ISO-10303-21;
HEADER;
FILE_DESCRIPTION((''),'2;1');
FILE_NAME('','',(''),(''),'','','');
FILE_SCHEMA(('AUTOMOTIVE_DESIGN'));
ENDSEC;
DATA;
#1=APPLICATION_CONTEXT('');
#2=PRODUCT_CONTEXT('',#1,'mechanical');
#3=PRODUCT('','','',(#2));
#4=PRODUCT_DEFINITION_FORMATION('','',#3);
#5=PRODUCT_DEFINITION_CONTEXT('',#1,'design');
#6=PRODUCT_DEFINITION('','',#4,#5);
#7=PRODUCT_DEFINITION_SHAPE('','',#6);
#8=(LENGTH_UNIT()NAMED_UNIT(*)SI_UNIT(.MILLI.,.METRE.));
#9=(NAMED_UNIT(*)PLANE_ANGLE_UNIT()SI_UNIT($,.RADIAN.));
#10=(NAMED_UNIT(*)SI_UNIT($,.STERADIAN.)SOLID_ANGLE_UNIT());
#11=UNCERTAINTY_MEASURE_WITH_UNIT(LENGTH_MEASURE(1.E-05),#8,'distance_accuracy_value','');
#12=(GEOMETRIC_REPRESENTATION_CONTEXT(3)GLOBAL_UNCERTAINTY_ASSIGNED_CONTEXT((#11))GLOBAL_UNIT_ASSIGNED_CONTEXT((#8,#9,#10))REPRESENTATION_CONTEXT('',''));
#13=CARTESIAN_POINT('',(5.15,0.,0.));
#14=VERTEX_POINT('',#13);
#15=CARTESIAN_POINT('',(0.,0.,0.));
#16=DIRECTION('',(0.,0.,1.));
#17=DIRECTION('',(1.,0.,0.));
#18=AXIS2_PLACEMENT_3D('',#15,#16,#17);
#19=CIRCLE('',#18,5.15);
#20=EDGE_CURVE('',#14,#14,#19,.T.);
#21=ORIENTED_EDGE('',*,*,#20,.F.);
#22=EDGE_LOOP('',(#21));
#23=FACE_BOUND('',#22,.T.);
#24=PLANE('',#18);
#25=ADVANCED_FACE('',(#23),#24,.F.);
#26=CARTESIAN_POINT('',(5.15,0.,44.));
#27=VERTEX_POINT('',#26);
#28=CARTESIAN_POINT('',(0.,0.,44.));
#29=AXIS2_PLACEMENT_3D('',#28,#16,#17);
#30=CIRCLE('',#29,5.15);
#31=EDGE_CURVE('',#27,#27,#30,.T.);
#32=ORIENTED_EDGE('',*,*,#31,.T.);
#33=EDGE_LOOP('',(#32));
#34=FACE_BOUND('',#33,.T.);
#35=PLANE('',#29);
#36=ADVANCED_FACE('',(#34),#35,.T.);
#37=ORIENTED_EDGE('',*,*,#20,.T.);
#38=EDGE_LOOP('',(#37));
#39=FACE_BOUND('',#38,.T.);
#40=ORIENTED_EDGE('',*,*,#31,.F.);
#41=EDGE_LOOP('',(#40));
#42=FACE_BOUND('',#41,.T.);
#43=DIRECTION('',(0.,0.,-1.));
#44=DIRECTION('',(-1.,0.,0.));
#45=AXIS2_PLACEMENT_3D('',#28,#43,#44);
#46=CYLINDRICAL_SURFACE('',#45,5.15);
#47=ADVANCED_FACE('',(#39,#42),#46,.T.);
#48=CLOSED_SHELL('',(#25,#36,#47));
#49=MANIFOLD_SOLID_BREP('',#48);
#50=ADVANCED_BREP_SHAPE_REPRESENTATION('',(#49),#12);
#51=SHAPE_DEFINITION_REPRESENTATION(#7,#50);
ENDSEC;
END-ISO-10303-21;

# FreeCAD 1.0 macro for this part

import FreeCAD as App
import Part
import Sketcher
from FreeCAD import Vector
Q = App.Units.Quantity

doc = App.newDocument("Part")
body = doc.addObject("PartDesign::Body", "Body")

# Sketch on XY plane
sketch1 = doc.addObject("Sketcher::SketchObject", "Sketch")
body.addObject(sketch1)
sketch1.AttachmentSupport = (doc.XY_Plane, [""])
sketch1.MapMode = "FlatFace"
sketch1.addGeometry(Part.Circle(Vector(0, 0, 0), Vector(0, 0, 1), 5), False)
sketch1.addConstraint([
    Sketcher.Constraint("Coincident", 0, 3, -1, 1),
    Sketcher.Constraint("Diameter", 0, Q("10.3 mm")),
])
pad1 = doc.addObject("PartDesign::Pad", "Pad")
body.addObject(pad1)
pad1.Profile = sketch1
pad1.Length = 44

doc.recompute()
